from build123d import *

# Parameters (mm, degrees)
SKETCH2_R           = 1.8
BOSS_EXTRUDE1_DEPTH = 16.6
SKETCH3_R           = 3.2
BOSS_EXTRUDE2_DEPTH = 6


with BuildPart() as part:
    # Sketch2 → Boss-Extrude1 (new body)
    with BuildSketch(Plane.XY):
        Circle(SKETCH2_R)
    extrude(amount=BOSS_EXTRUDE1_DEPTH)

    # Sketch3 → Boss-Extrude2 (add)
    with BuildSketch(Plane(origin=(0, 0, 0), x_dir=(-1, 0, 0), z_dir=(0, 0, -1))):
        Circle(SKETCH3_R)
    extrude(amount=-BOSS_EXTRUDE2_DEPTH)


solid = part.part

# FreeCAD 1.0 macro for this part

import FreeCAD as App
import Part
import Sketcher
Q = App.Units.Quantity

doc = App.newDocument("Part")
body = doc.addObject("PartDesign::Body", "Body")

# Sketch on XY plane
sketch1 = body.newObject("Sketcher::SketchObject", "Sketch")
sketch1.AttachmentSupport = (doc.getObject("XY_Plane"), [""])
sketch1.MapMode = "FlatFace"
sketch1.addGeometry(Part.Circle(App.Vector(0, 0, 0), App.Vector(0, 0, 1), 1.8), False)
sketch1.addConstraint([
    Sketcher.Constraint("Coincident", 0, 3, -1, 1),
    Sketcher.Constraint("Diameter", 0, Q("3.6 mm")),
])
pad1 = body.newObject("PartDesign::Pad", "Pad")
pad1.Profile = sketch1
pad1.Length = 16.6

# Sketch on XY plane
sketch2 = body.newObject("Sketcher::SketchObject", "Sketch001")
sketch2.AttachmentSupport = (doc.getObject("XY_Plane"), [""])
sketch2.MapMode = "FlatFace"
sketch2.addGeometry(Part.Circle(App.Vector(0, 0, 0), App.Vector(0, 0, 1), 3.2), False)
sketch2.addConstraint([
    Sketcher.Constraint("Coincident", 0, 3, -1, 1),
    Sketcher.Constraint("Diameter", 0, Q("6.4 mm")),
])
pad2 = body.newObject("PartDesign::Pad", "Pad001")
pad2.Profile = sketch2
pad2.Length = 6

doc.recompute()
